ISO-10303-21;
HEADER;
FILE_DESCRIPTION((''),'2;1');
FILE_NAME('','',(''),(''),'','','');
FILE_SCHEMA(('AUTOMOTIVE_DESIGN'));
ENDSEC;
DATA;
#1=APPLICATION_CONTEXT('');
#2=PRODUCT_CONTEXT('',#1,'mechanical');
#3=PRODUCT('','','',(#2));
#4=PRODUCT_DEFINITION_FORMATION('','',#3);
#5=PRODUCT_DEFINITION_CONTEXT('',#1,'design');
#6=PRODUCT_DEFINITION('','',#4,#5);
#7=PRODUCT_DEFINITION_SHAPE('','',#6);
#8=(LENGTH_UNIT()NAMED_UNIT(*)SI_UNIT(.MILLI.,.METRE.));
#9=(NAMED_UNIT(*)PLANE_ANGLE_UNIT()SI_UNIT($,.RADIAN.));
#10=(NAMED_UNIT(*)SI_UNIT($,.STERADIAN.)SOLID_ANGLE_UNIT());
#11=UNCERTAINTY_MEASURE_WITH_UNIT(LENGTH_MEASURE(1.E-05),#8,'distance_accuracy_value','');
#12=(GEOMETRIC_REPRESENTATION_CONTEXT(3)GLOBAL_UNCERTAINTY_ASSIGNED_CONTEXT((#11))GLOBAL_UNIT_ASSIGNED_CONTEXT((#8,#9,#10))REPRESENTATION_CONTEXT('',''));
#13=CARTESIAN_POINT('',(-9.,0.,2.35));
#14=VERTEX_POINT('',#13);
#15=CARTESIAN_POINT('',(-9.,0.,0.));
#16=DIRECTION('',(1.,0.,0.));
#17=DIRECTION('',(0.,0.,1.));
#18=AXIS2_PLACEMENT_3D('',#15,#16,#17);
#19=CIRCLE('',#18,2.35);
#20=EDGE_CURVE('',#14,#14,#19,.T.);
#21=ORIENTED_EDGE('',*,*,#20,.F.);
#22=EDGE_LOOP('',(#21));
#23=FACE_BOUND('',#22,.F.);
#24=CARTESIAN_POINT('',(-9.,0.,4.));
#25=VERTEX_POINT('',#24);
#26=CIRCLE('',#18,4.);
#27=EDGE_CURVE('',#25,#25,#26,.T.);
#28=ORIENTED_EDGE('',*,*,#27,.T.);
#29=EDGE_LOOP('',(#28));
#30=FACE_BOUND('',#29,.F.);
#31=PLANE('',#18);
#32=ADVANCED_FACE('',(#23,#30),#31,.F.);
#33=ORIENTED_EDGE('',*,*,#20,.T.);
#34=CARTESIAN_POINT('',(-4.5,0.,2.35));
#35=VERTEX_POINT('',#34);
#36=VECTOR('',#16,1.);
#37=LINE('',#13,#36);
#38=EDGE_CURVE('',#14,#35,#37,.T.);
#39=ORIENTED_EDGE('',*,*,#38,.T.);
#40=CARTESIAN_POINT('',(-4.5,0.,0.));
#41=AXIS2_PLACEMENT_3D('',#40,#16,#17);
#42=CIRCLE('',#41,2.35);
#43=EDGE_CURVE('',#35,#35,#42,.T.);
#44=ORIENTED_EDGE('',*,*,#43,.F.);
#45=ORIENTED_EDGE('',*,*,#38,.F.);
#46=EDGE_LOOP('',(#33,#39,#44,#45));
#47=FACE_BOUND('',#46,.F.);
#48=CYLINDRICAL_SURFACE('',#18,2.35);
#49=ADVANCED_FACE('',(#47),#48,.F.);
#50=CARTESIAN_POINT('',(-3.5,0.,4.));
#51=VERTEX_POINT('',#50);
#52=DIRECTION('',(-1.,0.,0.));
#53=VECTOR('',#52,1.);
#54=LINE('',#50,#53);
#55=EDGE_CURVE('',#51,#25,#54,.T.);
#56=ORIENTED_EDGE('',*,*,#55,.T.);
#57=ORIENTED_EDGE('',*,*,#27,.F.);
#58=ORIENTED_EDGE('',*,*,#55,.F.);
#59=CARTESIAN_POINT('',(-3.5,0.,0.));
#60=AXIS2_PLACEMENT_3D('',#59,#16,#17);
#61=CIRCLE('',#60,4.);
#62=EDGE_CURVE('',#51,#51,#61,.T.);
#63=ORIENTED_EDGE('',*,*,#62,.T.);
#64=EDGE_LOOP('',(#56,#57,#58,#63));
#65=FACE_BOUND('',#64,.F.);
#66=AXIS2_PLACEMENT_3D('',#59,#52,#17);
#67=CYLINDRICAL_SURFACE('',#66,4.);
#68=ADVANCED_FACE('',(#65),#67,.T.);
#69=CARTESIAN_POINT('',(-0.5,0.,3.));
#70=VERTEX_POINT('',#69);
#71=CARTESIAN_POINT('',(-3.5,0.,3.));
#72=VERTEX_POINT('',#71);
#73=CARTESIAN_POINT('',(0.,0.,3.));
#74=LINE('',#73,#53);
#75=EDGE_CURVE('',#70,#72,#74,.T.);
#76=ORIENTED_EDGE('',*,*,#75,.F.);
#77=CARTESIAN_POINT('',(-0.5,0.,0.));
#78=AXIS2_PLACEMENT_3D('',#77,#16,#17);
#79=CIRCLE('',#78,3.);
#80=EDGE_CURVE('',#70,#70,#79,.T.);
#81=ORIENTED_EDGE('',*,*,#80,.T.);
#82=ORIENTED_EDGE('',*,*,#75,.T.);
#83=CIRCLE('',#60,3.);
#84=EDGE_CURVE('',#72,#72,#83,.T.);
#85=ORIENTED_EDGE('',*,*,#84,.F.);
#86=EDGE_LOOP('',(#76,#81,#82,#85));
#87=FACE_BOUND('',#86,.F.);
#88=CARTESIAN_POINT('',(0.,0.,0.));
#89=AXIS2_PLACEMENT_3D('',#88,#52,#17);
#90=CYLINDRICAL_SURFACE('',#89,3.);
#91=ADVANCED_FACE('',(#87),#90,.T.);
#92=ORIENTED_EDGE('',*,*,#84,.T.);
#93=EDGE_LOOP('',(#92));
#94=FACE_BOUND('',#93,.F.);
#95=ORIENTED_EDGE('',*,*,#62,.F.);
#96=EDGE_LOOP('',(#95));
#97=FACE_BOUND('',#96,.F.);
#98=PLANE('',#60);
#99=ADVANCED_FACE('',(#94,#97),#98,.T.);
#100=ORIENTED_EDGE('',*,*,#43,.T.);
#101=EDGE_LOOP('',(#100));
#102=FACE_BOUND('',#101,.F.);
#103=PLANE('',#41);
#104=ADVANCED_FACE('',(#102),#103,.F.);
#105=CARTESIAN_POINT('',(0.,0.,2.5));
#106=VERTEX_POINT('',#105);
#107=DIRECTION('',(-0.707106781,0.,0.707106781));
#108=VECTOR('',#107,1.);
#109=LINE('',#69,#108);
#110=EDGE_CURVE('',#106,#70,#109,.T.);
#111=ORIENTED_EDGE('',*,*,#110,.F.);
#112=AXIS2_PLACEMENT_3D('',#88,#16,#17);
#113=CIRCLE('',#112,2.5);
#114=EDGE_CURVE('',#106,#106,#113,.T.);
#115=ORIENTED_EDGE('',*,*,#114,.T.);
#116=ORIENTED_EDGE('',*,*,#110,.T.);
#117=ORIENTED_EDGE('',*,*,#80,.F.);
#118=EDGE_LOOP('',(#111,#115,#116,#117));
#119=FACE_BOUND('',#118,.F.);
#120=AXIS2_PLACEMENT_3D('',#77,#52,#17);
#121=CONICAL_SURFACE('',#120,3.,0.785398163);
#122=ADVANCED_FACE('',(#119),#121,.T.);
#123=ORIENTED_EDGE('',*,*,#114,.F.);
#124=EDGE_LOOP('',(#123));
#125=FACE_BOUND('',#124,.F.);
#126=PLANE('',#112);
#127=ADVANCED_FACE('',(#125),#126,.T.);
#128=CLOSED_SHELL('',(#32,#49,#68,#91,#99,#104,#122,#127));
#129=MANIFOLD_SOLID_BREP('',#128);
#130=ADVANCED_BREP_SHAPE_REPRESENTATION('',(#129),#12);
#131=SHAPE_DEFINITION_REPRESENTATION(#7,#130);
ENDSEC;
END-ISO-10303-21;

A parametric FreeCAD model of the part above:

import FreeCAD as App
import Part
import Sketcher
from FreeCAD import Vector


def edges_at(feature, points):
    """Names of the edges that pass closest to the given points."""
    edges = feature.Shape.Edges
    near = lambda p: min(range(len(edges)), key=lambda i: edges[i].distToShape(Part.Vertex(*p))[0])
    return sorted({f"Edge{near(p) + 1}" for p in points})

doc = App.newDocument("Part")
body = doc.addObject("PartDesign::Body", "Body")

sketch1 = doc.addObject("Sketcher::SketchObject", "Sketch")
body.addObject(sketch1)
sketch1.AttachmentSupport = (doc.XZ_Plane, [""])
sketch1.MapMode = "FlatFace"
sketch1.addGeometry([
    Part.LineSegment(Vector(-4.5, 0, 0), Vector(0, 0, 0)),
    Part.LineSegment(Vector(0, 0, 0), Vector(0, 3, 0)),
    Part.LineSegment(Vector(0, 3, 0), Vector(-3.5, 3, 0)),
    Part.LineSegment(Vector(-3.5, 3, 0), Vector(-3.5, 4, 0)),
    Part.LineSegment(Vector(-3.5, 4, 0), Vector(-9, 4, 0)),
    Part.LineSegment(Vector(-9, 4, 0), Vector(-9, 2.35, 0)),
    Part.LineSegment(Vector(-9, 2.35, 0), Vector(-4.5, 2.35, 0)),
    Part.LineSegment(Vector(-4.5, 2.35, 0), Vector(-4.5, 0, 0)),
], False)
sketch1.addConstraint([
    Sketcher.Constraint("Coincident", 0, 2, 1, 1),
    Sketcher.Constraint("Coincident", 1, 2, 2, 1),
    Sketcher.Constraint("Coincident", 2, 2, 3, 1),
    Sketcher.Constraint("Coincident", 3, 2, 4, 1),
    Sketcher.Constraint("Coincident", 4, 2, 5, 1),
    Sketcher.Constraint("Coincident", 5, 2, 6, 1),
    Sketcher.Constraint("Coincident", 6, 2, 7, 1),
    Sketcher.Constraint("Coincident", 7, 2, 0, 1),
    Sketcher.Constraint("Horizontal", 0),
    Sketcher.Constraint("Vertical", 1),
    Sketcher.Constraint("Horizontal", 2),
    Sketcher.Constraint("Vertical", 3),
    Sketcher.Constraint("Horizontal", 4),
    Sketcher.Constraint("Vertical", 5),
    Sketcher.Constraint("Horizontal", 6),
    Sketcher.Constraint("Vertical", 7),
    Sketcher.Constraint("Coincident", 0, 2, -1, 1),
    Sketcher.Constraint("Equal", 0, 6),
    Sketcher.Constraint("DistanceY", 1, 1, 1, 2, 3.0),
    Sketcher.Constraint("DistanceY", 3, 1, 3, 2, 1.0),
    Sketcher.Constraint("DistanceX", 0, 1, 0, 2, 4.5),
    Sketcher.Constraint("DistanceX", 2, 2, 2, 1, 3.5),
    Sketcher.Constraint("DistanceY", 5, 2, 5, 1, 1.65),
])
revolution = doc.addObject("PartDesign::Revolution", "Revolution")
body.addObject(revolution)
revolution.Profile = sketch1
revolution.ReferenceAxis = (sketch1, ["H_Axis"])
revolution.Angle = 360
doc.recompute()

chamfer = doc.addObject("PartDesign::Chamfer", "Chamfer")
body.addObject(chamfer)
chamfer.Base = (revolution, edges_at(revolution, [(0, 0, -3)]))
chamfer.Size = 0.5

doc.recompute()
